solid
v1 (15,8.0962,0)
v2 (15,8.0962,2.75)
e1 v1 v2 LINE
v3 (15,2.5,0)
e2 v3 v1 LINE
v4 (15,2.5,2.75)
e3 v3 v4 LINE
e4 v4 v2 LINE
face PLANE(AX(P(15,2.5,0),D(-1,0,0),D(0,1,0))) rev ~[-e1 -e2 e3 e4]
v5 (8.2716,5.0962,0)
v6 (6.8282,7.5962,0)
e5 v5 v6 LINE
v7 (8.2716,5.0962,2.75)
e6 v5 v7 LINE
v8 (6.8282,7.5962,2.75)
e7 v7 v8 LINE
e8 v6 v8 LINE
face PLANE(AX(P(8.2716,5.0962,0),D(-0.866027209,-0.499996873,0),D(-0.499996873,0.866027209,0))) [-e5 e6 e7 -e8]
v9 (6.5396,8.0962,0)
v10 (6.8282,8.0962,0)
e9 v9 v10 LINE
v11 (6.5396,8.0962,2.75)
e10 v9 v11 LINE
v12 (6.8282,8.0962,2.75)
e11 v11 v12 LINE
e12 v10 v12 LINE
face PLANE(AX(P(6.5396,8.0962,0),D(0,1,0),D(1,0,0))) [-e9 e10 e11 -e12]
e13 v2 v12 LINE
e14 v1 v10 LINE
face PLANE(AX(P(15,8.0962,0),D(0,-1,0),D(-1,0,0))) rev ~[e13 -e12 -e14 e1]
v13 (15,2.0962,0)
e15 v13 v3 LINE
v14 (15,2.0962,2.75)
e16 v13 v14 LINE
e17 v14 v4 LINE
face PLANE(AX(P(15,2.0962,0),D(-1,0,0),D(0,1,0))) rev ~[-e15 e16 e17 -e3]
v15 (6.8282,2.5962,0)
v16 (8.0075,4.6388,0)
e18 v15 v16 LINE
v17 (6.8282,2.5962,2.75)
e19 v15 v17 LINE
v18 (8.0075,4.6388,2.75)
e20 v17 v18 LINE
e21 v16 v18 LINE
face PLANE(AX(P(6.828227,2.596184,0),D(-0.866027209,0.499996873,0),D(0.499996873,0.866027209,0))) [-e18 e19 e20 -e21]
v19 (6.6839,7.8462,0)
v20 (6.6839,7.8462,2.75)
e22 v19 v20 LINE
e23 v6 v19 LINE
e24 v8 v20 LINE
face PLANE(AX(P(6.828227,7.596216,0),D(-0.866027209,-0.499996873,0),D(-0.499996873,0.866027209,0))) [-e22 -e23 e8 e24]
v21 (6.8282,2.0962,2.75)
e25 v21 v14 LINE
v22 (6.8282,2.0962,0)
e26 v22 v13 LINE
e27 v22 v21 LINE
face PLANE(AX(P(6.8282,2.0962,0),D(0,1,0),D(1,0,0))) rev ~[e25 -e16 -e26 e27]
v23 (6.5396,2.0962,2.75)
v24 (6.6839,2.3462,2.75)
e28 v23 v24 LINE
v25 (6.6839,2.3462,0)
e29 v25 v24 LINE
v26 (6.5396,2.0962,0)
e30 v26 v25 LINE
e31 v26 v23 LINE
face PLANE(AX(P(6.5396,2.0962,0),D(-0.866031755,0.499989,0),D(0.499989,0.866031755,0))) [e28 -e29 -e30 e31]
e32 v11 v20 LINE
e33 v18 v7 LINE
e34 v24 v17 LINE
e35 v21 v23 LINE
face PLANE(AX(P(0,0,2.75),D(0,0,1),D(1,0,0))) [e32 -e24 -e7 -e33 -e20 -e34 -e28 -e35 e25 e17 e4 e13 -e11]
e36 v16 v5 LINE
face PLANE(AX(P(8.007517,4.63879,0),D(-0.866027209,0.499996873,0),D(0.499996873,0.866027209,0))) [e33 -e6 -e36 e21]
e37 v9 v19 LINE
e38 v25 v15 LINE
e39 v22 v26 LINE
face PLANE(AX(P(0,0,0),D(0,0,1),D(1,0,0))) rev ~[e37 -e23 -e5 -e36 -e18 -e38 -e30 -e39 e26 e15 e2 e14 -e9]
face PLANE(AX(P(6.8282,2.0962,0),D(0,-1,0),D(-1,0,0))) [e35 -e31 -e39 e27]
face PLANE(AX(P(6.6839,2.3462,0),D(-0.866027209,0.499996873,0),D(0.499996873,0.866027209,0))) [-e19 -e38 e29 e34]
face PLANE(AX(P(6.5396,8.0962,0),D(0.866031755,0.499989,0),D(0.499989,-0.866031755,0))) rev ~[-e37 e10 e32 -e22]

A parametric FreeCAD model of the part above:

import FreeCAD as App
import Part
import Sketcher

V = App.Vector
Q = App.Units.Quantity


def add_polygon(sketch, points):
    """Adds a closed chain of lines whose ends are joined by coincident constraints."""
    first, n = sketch.GeometryCount, len(points)
    for a, b in zip(points, points[1:] + points[:1]):
        sketch.addGeometry(Part.LineSegment(App.Vector(*a, 0), App.Vector(*b, 0)), False)
    for i in range(n):
        sketch.addConstraint(Sketcher.Constraint("Coincident", first + i, 2, first + (i + 1) % n, 1))

doc = App.newDocument("Part")
body = doc.addObject("PartDesign::Body", "Body")

# Sketch on XY plane
sketch1 = doc.addObject("Sketcher::SketchObject", "Sketch")
body.addObject(sketch1)
sketch1.AttachmentSupport = (doc.XY_Plane, [""])
sketch1.MapMode = "FlatFace"
add_polygon(sketch1, [(15, 8.1), (6.54, 8.1), (6.68, 7.85), (8.27, 5.1), (6.68, 2.35), (6.54, 2.1), (15, 2.1)])  # lines 0-6
sketch1.addConstraint([
    Sketcher.Constraint("Horizontal", 0),
    Sketcher.Constraint("Horizontal", 5),
    Sketcher.Constraint("Vertical", 6),
    Sketcher.Constraint("Parallel", 1, 2),
    Sketcher.Constraint("Parallel", 3, 4),
    Sketcher.Constraint("Vertical", 1, 2, 3, 2),
    Sketcher.Constraint("Vertical", 0, 2, 4, 2),
    Sketcher.Constraint("Equal", 2, 3),
    Sketcher.Constraint("DistanceY", 2, 2, 0, 2, 3.0),
    Sketcher.Constraint("Angle", 1, Q("-60.0007 deg")),
    Sketcher.Constraint("DistanceY", 1, 2, 0, 2, 0.25),
    Sketcher.Constraint("DistanceX", -1, 1, 5, 2, 15.0),
    Sketcher.Constraint("DistanceX", 0, 2, 0, 1, 8.4604),
    Sketcher.Constraint("DistanceY", -1, 1, 0, 2, 8.0962),
])
pad1 = doc.addObject("PartDesign::Pad", "Pad")
body.addObject(pad1)
pad1.Profile = sketch1
pad1.Length = 2.75

doc.recompute()
